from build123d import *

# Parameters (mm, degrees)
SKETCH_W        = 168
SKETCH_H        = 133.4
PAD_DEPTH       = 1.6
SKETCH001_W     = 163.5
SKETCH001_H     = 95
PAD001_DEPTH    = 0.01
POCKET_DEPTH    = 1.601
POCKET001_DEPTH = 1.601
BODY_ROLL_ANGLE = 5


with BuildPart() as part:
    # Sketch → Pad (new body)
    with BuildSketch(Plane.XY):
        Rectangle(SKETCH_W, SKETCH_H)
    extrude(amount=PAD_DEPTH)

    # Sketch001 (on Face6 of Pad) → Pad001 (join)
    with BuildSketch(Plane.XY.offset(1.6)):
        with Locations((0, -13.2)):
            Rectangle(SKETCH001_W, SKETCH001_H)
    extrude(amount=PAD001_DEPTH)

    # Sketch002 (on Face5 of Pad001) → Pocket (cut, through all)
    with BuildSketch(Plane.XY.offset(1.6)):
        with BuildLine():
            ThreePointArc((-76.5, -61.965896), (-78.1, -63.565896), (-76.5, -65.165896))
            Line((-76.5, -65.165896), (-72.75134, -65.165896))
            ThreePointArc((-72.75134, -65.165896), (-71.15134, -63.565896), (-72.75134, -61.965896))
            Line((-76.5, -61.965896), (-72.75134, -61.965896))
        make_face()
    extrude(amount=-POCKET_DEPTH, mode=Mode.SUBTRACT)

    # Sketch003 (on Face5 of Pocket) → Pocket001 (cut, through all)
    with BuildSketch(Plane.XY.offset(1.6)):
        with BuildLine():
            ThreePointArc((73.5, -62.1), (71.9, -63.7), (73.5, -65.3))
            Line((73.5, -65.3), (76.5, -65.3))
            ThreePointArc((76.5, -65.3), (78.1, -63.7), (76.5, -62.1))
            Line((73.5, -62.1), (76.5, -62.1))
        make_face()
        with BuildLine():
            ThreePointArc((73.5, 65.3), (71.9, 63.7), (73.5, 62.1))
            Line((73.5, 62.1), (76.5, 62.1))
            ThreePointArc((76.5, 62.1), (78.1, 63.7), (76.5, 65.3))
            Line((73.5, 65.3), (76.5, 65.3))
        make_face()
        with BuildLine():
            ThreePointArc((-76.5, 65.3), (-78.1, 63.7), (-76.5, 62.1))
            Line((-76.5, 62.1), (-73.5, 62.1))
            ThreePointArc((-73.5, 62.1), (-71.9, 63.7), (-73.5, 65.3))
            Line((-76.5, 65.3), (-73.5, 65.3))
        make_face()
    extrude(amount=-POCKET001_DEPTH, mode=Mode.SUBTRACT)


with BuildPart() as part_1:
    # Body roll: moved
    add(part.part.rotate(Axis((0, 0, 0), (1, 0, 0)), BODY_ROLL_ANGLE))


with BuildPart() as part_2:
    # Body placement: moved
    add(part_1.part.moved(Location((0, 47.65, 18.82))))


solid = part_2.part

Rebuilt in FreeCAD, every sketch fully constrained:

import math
import FreeCAD as App
import Part
import Sketcher

V = App.Vector
Q = App.Units.Quantity

doc = App.newDocument("Part")
body = doc.addObject("PartDesign::Body", "Body")

# Sketch on XY plane
sketch1 = doc.addObject("Sketcher::SketchObject", "Sketch")
body.addObject(sketch1)
sketch1.AttachmentSupport = (doc.XY_Plane, [""])
sketch1.MapMode = "FlatFace"
sketch1.addGeometry([
    Part.LineSegment(V(-84, 67, 0), V(-84, -67, 0)),
    Part.LineSegment(V(-84, -67, 0), V(84, -67, 0)),
    Part.LineSegment(V(84, -67, 0), V(84, 67, 0)),
    Part.LineSegment(V(84, 67, 0), V(-84, 67, 0)),
], False)
sketch1.addConstraint([
    Sketcher.Constraint("Coincident", 0, 2, 1, 1),
    Sketcher.Constraint("Coincident", 1, 2, 2, 1),
    Sketcher.Constraint("Coincident", 2, 2, 3, 1),
    Sketcher.Constraint("Coincident", 3, 2, 0, 1),
    Sketcher.Constraint("Vertical", 0),
    Sketcher.Constraint("Horizontal", 1),
    Sketcher.Constraint("Vertical", 2),
    Sketcher.Constraint("Horizontal", 3),
    Sketcher.Constraint("Symmetric", 0, 2, 2, 2, -1, 1),
    Sketcher.Constraint("DistanceX", 1, 1, 1, 2, Q("168 mm")),
    Sketcher.Constraint("DistanceY", 0, 2, 0, 1, Q("133.4 mm")),
])
pad1 = doc.addObject("PartDesign::Pad", "Pad")
body.addObject(pad1)
pad1.Profile = sketch1
pad1.Length = 1.6

# Sketch on XY plane
sketch2 = doc.addObject("Sketcher::SketchObject", "Sketch001")
body.addObject(sketch2)
sketch2.AttachmentSupport = (doc.XY_Plane, [""])
sketch2.MapMode = "FlatFace"
sketch2.AttachmentOffset = App.Placement(V(0, 0, 1.6), App.Rotation())
sketch2.addGeometry([
    Part.LineSegment(V(-82, 34, 0), V(-82, -61, 0)),
    Part.LineSegment(V(-82, -61, 0), V(82, -61, 0)),
    Part.LineSegment(V(82, -61, 0), V(82, 34, 0)),
    Part.LineSegment(V(82, 34, 0), V(-82, 34, 0)),
], False)
sketch2.addConstraint([
    Sketcher.Constraint("Coincident", 0, 2, 1, 1),
    Sketcher.Constraint("Coincident", 1, 2, 2, 1),
    Sketcher.Constraint("Coincident", 2, 2, 3, 1),
    Sketcher.Constraint("Coincident", 3, 2, 0, 1),
    Sketcher.Constraint("Vertical", 0),
    Sketcher.Constraint("Horizontal", 1),
    Sketcher.Constraint("Vertical", 2),
    Sketcher.Constraint("Horizontal", 3),
    Sketcher.Constraint("DistanceY", 0, 2, 0, 1, Q("95 mm")),
    Sketcher.Constraint("DistanceX", 1, 1, 1, 2, Q("163.5 mm")),
    Sketcher.Constraint("DistanceY", 0, 2, -1, 1, Q("60.7 mm")),
    Sketcher.Constraint("DistanceX", 0, 2, -1, 1, Q("81.75 mm")),
])
pad2 = doc.addObject("PartDesign::Pad", "Pad001")
body.addObject(pad2)
pad2.Profile = sketch2
pad2.Length = 0.01

# Sketch on XY plane
sketch3 = doc.addObject("Sketcher::SketchObject", "Sketch002")
body.addObject(sketch3)
sketch3.AttachmentSupport = (doc.XY_Plane, [""])
sketch3.MapMode = "FlatFace"
sketch3.AttachmentOffset = App.Placement(V(0, 0, 1.6), App.Rotation())
sketch3.addGeometry([
    Part.ArcOfCircle(Part.Circle(V(-76.5, -63.6, 0), V(0, 0, 1), 1.6), math.radians(90), math.radians(270)),
    Part.LineSegment(V(-76.5, -65.2, 0), V(-72.8, -65.2, 0)),
    Part.ArcOfCircle(Part.Circle(V(-72.8, -63.6, 0), V(0, 0, 1), 1.6), math.radians(-90), math.radians(90)),
    Part.LineSegment(V(-72.8, -62, 0), V(-76.5, -62, 0)),
], False)
sketch3.addConstraint([
    Sketcher.Constraint("Tangent", 0, 2, 1, 1),
    Sketcher.Constraint("Tangent", 1, 2, 2, 1),
    Sketcher.Constraint("Tangent", 2, 2, 3, 1),
    Sketcher.Constraint("Tangent", 3, 2, 0, 1),
    Sketcher.Constraint("Horizontal", 1),
    Sketcher.Constraint("Horizontal", 3),
    Sketcher.Constraint("Radius", 0, Q("1.6 mm")),
    Sketcher.Constraint("DistanceX", 0, 3, -1, 1, Q("76.5 mm")),
    Sketcher.Constraint("DistanceX", 1, 1, 1, 2, Q("3.74866 mm")),
    Sketcher.Constraint("DistanceY", 0, 3, -1, 1, Q("63.565896 mm")),
])
pocket1 = doc.addObject("PartDesign::Pocket", "Pocket")
body.addObject(pocket1)
pocket1.Profile = sketch3
pocket1.Type = "ThroughAll"

# Sketch on XY plane
sketch4 = doc.addObject("Sketcher::SketchObject", "Sketch003")
body.addObject(sketch4)
sketch4.AttachmentSupport = (doc.XY_Plane, [""])
sketch4.MapMode = "FlatFace"
sketch4.AttachmentOffset = App.Placement(V(0, 0, 1.6), App.Rotation())
sketch4.addGeometry([
    Part.ArcOfCircle(Part.Circle(V(73.5, -63.7, 0), V(0, 0, 1), 1.6), math.radians(90), math.radians(270)),  # 0
    Part.LineSegment(V(73.5, -65.3, 0), V(76.5, -65.3, 0)),  # 1
    Part.ArcOfCircle(Part.Circle(V(76.5, -63.7, 0), V(0, 0, 1), 1.6), math.radians(-90), math.radians(90)),  # 2
    Part.LineSegment(V(76.5, -62.1, 0), V(73.5, -62.1, 0)),  # 3
    Part.ArcOfCircle(Part.Circle(V(73.5, 63.7, 0), V(0, 0, 1), 1.6), math.radians(90), math.radians(270)),  # 4
    Part.LineSegment(V(73.5, 62.1, 0), V(76.5, 62.1, 0)),  # 5
    Part.ArcOfCircle(Part.Circle(V(76.5, 63.7, 0), V(0, 0, 1), 1.6), math.radians(-90), math.radians(90)),  # 6
    Part.LineSegment(V(76.5, 65.3, 0), V(73.5, 65.3, 0)),  # 7
    Part.ArcOfCircle(Part.Circle(V(-76.5, 63.7, 0), V(0, 0, 1), 1.6), math.radians(90), math.radians(270)),  # 8
    Part.LineSegment(V(-76.5, 62.1, 0), V(-73.5, 62.1, 0)),  # 9
    Part.ArcOfCircle(Part.Circle(V(-73.5, 63.7, 0), V(0, 0, 1), 1.6), math.radians(-90), math.radians(90)),  # 10
    Part.LineSegment(V(-73.5, 65.3, 0), V(-76.5, 65.3, 0)),  # 11
], False)
sketch4.addConstraint([
    Sketcher.Constraint("Tangent", 0, 2, 1, 1),
    Sketcher.Constraint("Tangent", 1, 2, 2, 1),
    Sketcher.Constraint("Tangent", 2, 2, 3, 1),
    Sketcher.Constraint("Tangent", 3, 2, 0, 1),
    Sketcher.Constraint("Tangent", 4, 2, 5, 1),
    Sketcher.Constraint("Tangent", 5, 2, 6, 1),
    Sketcher.Constraint("Tangent", 6, 2, 7, 1),
    Sketcher.Constraint("Tangent", 7, 2, 4, 1),
    Sketcher.Constraint("Tangent", 8, 2, 9, 1),
    Sketcher.Constraint("Tangent", 9, 2, 10, 1),
    Sketcher.Constraint("Tangent", 10, 2, 11, 1),
    Sketcher.Constraint("Tangent", 11, 2, 8, 1),
    Sketcher.Constraint("Horizontal", 1),
    Sketcher.Constraint("Horizontal", 3),
    Sketcher.Constraint("Horizontal", 5),
    Sketcher.Constraint("Horizontal", 7),
    Sketcher.Constraint("Horizontal", 9),
    Sketcher.Constraint("Horizontal", 11),
    Sketcher.Constraint("Equal", 2, 4),
    Sketcher.Constraint("Equal", 6, 8),
    Sketcher.Constraint("Symmetric", 2, 3, 8, 3, -1, 1),
    Sketcher.Constraint("Symmetric", 6, 3, 8, 3, -2),
    Sketcher.Constraint("Vertical", 0, 3, 4, 3),
    Sketcher.Constraint("Equal", 7, 9),
    Sketcher.Constraint("Radius", 0, Q("1.6 mm")),
    Sketcher.Constraint("DistanceX", 1, 1, 1, 2, Q("3 mm")),
    Sketcher.Constraint("DistanceX", 8, 3, 4, 3, Q("150 mm")),
    Sketcher.Constraint("DistanceY", 0, 2, 4, 3, Q("129 mm")),
])
pocket2 = doc.addObject("PartDesign::Pocket", "Pocket001")
body.addObject(pocket2)
pocket2.Profile = sketch4
pocket2.Type = "ThroughAll"
body2 = doc.addObject("PartDesign::Body", "Body001")
doc.recompute()

body.Placement = App.Placement(V(0, 0, 0), App.Rotation(V(1, 0, 0), 5))
boolean = doc.addObject("PartDesign::Boolean", "Boolean")
body2.addObject(boolean)
boolean.Type = "Fuse"
boolean.addObjects([body])
body3 = doc.addObject("PartDesign::Body", "Body002")
doc.recompute()

body2.Placement = App.Placement(V(0, 47.65, 18.82), App.Rotation(V(0, 0, 1), 0))
boolean2 = doc.addObject("PartDesign::Boolean", "Boolean001")
body3.addObject(boolean2)
boolean2.Type = "Fuse"
boolean2.addObjects([body2])

doc.recompute()
